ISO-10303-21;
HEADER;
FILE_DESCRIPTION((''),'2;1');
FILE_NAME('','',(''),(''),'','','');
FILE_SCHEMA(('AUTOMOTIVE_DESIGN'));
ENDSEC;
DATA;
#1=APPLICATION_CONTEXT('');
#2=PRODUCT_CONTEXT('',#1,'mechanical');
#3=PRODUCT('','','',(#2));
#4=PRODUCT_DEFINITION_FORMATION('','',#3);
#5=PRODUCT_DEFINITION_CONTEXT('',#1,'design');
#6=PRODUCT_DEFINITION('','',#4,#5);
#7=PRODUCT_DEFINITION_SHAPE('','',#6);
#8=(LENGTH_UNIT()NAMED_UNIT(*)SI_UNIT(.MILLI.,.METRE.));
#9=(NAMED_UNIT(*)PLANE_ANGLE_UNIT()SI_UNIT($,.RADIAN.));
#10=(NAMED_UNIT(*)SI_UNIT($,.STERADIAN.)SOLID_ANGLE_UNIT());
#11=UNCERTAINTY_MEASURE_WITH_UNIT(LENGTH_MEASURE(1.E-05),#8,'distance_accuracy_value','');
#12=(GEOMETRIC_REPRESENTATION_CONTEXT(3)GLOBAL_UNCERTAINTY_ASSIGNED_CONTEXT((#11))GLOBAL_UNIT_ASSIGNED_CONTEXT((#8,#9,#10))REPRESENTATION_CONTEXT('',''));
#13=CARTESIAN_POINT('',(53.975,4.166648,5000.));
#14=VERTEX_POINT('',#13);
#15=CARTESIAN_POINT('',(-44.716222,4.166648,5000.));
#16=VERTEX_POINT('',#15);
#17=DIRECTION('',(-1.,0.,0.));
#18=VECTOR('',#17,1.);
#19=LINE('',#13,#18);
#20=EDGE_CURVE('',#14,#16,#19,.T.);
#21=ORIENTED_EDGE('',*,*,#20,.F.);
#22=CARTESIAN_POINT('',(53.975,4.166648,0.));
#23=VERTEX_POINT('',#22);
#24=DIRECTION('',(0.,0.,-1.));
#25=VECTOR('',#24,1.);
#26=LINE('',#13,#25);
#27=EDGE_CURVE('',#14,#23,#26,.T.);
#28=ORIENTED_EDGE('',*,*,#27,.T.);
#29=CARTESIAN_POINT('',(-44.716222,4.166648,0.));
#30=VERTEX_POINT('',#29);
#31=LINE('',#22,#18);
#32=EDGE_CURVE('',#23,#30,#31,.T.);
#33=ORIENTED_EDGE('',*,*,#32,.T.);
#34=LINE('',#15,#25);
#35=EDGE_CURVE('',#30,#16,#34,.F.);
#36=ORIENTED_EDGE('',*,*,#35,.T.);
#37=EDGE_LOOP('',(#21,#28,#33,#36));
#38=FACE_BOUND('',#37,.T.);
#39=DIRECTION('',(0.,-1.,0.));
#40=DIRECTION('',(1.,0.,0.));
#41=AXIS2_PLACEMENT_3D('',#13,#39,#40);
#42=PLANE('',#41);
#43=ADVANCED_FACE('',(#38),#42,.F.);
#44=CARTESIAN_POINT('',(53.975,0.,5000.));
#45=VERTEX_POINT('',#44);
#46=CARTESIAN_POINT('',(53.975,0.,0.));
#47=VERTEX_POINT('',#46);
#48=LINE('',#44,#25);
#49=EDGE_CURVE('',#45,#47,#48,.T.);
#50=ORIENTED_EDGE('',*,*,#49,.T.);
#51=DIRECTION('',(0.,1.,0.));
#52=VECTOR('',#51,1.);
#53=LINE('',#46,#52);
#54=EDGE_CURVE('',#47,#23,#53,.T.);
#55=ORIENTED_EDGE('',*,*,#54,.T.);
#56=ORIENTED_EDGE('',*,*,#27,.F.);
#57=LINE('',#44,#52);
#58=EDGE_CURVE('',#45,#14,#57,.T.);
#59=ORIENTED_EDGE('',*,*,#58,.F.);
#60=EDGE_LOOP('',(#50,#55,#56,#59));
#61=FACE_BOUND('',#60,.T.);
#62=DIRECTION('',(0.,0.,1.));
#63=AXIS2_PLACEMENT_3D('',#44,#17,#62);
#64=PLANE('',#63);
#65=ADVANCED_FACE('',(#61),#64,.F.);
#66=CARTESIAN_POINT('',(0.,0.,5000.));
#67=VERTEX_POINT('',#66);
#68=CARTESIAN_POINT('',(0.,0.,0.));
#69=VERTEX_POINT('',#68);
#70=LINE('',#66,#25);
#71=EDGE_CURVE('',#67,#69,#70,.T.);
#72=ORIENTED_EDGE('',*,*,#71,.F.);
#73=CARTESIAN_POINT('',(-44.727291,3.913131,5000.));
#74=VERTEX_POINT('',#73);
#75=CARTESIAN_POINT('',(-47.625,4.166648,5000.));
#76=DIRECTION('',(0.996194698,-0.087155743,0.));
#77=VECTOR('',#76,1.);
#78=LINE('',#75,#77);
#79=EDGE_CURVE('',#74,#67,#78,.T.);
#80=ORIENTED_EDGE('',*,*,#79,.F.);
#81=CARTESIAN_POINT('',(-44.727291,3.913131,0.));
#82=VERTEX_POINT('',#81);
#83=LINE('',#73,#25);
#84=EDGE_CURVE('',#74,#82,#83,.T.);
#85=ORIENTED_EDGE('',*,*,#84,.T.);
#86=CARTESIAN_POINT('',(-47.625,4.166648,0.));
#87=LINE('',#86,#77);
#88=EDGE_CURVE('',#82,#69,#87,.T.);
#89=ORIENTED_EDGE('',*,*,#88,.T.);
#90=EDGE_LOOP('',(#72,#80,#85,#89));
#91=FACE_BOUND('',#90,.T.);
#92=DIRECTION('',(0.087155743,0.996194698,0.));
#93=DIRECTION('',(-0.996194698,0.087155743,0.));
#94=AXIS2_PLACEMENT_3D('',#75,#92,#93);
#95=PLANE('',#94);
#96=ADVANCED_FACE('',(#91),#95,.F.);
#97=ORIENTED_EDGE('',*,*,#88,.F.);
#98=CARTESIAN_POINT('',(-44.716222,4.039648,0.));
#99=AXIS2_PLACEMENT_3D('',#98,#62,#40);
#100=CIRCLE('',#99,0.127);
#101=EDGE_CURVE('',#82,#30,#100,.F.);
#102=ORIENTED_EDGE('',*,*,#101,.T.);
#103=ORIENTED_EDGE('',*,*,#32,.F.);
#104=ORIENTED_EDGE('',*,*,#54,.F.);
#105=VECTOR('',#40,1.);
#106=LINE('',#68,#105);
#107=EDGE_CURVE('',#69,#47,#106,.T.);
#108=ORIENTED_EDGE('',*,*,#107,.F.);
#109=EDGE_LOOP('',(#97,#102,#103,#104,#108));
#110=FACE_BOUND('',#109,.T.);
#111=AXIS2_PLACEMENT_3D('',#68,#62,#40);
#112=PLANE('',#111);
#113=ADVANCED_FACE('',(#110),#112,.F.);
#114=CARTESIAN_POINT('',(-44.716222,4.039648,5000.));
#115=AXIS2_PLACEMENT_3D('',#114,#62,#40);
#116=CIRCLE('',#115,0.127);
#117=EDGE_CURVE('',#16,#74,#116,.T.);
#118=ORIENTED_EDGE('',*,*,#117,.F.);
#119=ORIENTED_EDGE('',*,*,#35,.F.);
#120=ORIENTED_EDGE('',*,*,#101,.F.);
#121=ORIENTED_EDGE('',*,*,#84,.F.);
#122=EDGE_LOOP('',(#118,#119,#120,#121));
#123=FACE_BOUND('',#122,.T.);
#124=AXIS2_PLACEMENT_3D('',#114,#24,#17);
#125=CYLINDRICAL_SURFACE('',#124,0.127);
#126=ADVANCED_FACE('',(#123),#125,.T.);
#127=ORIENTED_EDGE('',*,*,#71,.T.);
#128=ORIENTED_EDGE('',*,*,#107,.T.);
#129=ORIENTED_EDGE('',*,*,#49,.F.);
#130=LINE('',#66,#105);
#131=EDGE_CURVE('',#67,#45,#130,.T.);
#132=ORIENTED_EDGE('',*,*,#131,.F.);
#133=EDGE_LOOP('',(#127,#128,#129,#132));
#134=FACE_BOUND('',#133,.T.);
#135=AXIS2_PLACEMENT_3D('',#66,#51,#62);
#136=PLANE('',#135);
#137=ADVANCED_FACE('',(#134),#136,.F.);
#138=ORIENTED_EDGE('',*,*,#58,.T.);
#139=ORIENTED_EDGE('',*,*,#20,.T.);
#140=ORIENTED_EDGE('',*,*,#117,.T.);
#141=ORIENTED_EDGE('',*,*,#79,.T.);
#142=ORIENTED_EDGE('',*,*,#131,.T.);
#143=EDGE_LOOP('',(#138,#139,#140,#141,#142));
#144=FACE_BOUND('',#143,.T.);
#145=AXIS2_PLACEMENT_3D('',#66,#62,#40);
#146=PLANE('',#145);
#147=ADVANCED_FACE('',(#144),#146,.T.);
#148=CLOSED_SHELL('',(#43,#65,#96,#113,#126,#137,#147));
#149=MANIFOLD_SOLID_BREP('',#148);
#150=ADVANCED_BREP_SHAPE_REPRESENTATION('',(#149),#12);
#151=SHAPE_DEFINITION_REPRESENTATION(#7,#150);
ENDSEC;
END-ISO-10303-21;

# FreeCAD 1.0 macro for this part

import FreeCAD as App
import Part
import Sketcher
from FreeCAD import Vector
Q = App.Units.Quantity


def edges_at(feature, points):
    """Names of the edges that pass closest to the given points."""
    edges = feature.Shape.Edges
    near = lambda p: min(range(len(edges)), key=lambda i: edges[i].distToShape(Part.Vertex(*p))[0])
    return sorted({f"Edge{near(p) + 1}" for p in points})


def add_polygon(sketch, points):
    """Adds a closed chain of lines whose ends are joined by coincident constraints."""
    first, n = sketch.GeometryCount, len(points)
    for a, b in zip(points, points[1:] + points[:1]):
        sketch.addGeometry(Part.LineSegment(App.Vector(*a, 0), App.Vector(*b, 0)), False)
    for i in range(n):
        sketch.addConstraint(Sketcher.Constraint("Coincident", first + i, 2, first + (i + 1) % n, 1))

doc = App.newDocument("Part")
body = doc.addObject("PartDesign::Body", "Body")

# Sketch on XY plane
sketch1 = body.newObject("Sketcher::SketchObject", "Sketch")
sketch1.AttachmentSupport = (doc.getObject("XY_Plane"), [""])
sketch1.MapMode = "FlatFace"
add_polygon(sketch1, [(0, 0), (54, 0), (54, 4.2), (-47.6, 4.2)])  # lines 0-3
sketch1.addConstraint(Sketcher.Constraint("Horizontal", 0))
sketch1.addConstraint(Sketcher.Constraint("Vertical", 1))
sketch1.addConstraint(Sketcher.Constraint("Horizontal", 2))
sketch1.addConstraint(Sketcher.Constraint("Coincident", 3, 2, -1, 1))
sketch1.addConstraint(Sketcher.Constraint("DistanceX", 2, 2, 2, 1, Q("4 in")))
sketch1.addConstraint(Sketcher.Constraint("Angle", 3, Q("-5 deg")))
sketch1.addConstraint(Sketcher.Constraint("DistanceX", 0, 1, 0, 2, Q("2.125 in")))
pad1 = body.newObject("PartDesign::Pad", "Pad")
pad1.Profile = sketch1
pad1.Length = 5000
doc.recompute()

fillet = body.newObject("PartDesign::Fillet", "Fillet")
fillet.Base = (pad1, edges_at(pad1, [(-47.625, 4.167, 2500)]))
fillet.Radius = Q("0.005 in")

doc.recompute()
